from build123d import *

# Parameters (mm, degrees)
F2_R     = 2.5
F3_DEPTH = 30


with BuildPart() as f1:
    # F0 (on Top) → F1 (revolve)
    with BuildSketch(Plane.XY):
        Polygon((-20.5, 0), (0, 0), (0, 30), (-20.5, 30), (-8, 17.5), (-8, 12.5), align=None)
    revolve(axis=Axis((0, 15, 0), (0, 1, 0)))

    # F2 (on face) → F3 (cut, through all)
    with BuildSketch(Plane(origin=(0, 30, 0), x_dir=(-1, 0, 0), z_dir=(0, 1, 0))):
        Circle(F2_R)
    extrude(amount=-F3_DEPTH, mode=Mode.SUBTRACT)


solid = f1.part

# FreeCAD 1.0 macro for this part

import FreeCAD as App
import Part
import Sketcher


def add_polygon(sketch, points):
    """Adds a closed chain of lines whose ends are joined by coincident constraints."""
    first, n = sketch.GeometryCount, len(points)
    for a, b in zip(points, points[1:] + points[:1]):
        sketch.addGeometry(Part.LineSegment(App.Vector(*a, 0), App.Vector(*b, 0)), False)
    for i in range(n):
        sketch.addConstraint(Sketcher.Constraint("Coincident", first + i, 2, first + (i + 1) % n, 1))

doc = App.newDocument("Part")
body = doc.addObject("PartDesign::Body", "Body")

sketch1 = body.newObject("Sketcher::SketchObject", "Sketch")
sketch1.AttachmentSupport = (doc.getObject("XY_Plane"), [""])
sketch1.MapMode = "FlatFace"
add_polygon(sketch1, [(-20, 0), (0, 0), (0, 30), (-20, 30), (-8, 18), (-8, 12)])
sketch1.addConstraint([
    Sketcher.Constraint("Horizontal", 0),
    Sketcher.Constraint("Vertical", 1),
    Sketcher.Constraint("Horizontal", 2),
    Sketcher.Constraint("Vertical", 4),
    Sketcher.Constraint("Coincident", 0, 2, -1, 1),
    Sketcher.Constraint("Perpendicular", 3, 5),
    Sketcher.Constraint("Vertical", 2, 2, 5, 2),
    Sketcher.Constraint("Equal", 3, 5),
    Sketcher.Constraint("DistanceY", 1, 1, 1, 2, 30.0),
    Sketcher.Constraint("DistanceY", 4, 2, 4, 1, 5.0),
    Sketcher.Constraint("DistanceX", 0, 1, 0, 2, 20.5),
])
revolution = body.newObject("PartDesign::Revolution", "Revolution")
revolution.Profile = sketch1
revolution.ReferenceAxis = (sketch1, ["V_Axis"])
revolution.Angle = 360

sketch2 = body.newObject("Sketcher::SketchObject", "Sketch001")
sketch2.AttachmentSupport = (doc.getObject("XZ_Plane"), [""])
sketch2.MapMode = "FlatFace"
sketch2.AttachmentOffset = App.Placement(App.Vector(0, 0, -30), App.Rotation())
sketch2.addGeometry(Part.Circle(App.Vector(0, 0, 0), App.Vector(0, 0, 1), 2.5), False)
sketch2.addConstraint([
    Sketcher.Constraint("Coincident", 0, 3, -1, 1),
    Sketcher.Constraint("Diameter", 0, 5.0),
])
pocket1 = body.newObject("PartDesign::Pocket", "Pocket")
pocket1.Profile = sketch2
pocket1.Type = "ThroughAll"
pocket1.Reversed = True

doc.recompute()
